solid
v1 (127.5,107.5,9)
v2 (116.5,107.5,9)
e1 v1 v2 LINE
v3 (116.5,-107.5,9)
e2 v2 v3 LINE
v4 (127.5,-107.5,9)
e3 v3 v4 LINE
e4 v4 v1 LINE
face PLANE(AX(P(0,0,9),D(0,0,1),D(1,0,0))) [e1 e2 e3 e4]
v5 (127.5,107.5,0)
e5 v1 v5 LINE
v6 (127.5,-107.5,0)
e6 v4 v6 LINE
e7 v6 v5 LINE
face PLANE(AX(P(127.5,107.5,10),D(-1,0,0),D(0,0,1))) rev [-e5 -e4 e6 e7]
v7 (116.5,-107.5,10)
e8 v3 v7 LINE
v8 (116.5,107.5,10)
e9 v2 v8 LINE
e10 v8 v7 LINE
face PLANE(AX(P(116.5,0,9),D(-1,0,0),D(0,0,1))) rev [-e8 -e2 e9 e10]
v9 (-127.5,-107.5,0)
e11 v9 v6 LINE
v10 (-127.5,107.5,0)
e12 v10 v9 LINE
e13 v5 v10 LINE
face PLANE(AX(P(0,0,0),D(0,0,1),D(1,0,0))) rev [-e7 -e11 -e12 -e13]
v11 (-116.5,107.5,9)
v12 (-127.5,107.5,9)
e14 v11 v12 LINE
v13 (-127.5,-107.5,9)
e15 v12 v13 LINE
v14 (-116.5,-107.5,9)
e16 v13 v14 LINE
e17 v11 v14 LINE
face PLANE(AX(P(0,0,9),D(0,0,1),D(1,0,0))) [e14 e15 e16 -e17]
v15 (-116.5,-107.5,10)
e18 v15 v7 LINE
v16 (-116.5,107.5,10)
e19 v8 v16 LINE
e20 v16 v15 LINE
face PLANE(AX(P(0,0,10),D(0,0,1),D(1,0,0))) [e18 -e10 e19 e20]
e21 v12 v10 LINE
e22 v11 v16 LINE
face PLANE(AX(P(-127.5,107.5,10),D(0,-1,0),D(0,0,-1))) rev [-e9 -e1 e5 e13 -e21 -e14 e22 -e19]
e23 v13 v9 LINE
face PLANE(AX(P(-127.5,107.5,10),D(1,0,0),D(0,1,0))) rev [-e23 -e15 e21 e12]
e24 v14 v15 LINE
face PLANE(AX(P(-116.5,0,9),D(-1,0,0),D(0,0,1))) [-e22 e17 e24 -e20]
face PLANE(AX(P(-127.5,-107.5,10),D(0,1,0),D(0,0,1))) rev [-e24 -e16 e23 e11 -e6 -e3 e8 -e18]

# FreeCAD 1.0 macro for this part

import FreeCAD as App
import Part
import Sketcher

V = App.Vector
Q = App.Units.Quantity

doc = App.newDocument("Part")
params = doc.addObject("Spreadsheet::Sheet", "Params")
for row, (alias, value) in enumerate([
    ("sketch1_width", "255 mm"),
    ("sketch1_height", "215 mm"),
    ("pad1_length", "10 mm"),
    ("sketch2_width", "11 mm"),
    ("sketch2_height", "215 mm"),
    ("pocket1_length", "1 mm"),
], start=1):
    params.set(f"A{row}", alias)
    params.set(f"B{row}", "=" + value)
    params.setAlias(f"B{row}", alias)

body = doc.addObject("PartDesign::Body", "Body")

sketch1 = body.newObject("Sketcher::SketchObject", "Sketch")
sketch1.AttachmentSupport = (doc.getObject("XY_Plane"), [""])
sketch1.MapMode = "FlatFace"
sketch1.addGeometry([
    Part.LineSegment(V(-128, 108, 0), V(-128, -108, 0)),
    Part.LineSegment(V(-128, -108, 0), V(128, -108, 0)),
    Part.LineSegment(V(128, -108, 0), V(128, 108, 0)),
    Part.LineSegment(V(128, 108, 0), V(-128, 108, 0)),
], False)
sketch1.addConstraint([
    Sketcher.Constraint("Coincident", 0, 2, 1, 1),
    Sketcher.Constraint("Coincident", 1, 2, 2, 1),
    Sketcher.Constraint("Coincident", 2, 2, 3, 1),
    Sketcher.Constraint("Coincident", 3, 2, 0, 1),
    Sketcher.Constraint("Vertical", 0),
    Sketcher.Constraint("Horizontal", 1),
    Sketcher.Constraint("Vertical", 2),
    Sketcher.Constraint("Horizontal", 3),
    Sketcher.Constraint("Symmetric", 0, 2, 2, 2, -1, 1),
    Sketcher.Constraint("DistanceX", 1, 1, 1, 2, Q("255 mm")),
    Sketcher.Constraint("DistanceY", 0, 2, 0, 1, Q("215 mm")),
])
sketch1.setExpression("Constraints[9]", "Params.sketch1_width")
sketch1.setExpression("Constraints[10]", "Params.sketch1_height")
pad1 = body.newObject("PartDesign::Pad", "Pad")
pad1.Profile = sketch1
pad1.setExpression("Length", "Params.pad1_length")

sketch2 = body.newObject("Sketcher::SketchObject", "Sketch001")
sketch2.AttachmentSupport = (doc.getObject("XY_Plane"), [""])
sketch2.MapMode = "FlatFace"
sketch2.AttachmentOffset = App.Placement(V(0, 0, 10), App.Rotation())
sketch2.addGeometry([
    Part.LineSegment(V(-128, 108, 0), V(-128, -108, 0)),
    Part.LineSegment(V(-128, -108, 0), V(-116, -108, 0)),
    Part.LineSegment(V(-116, -108, 0), V(-116, 108, 0)),
    Part.LineSegment(V(-116, 108, 0), V(-128, 108, 0)),
    Part.LineSegment(V(116, 108, 0), V(116, -108, 0)),
    Part.LineSegment(V(116, -108, 0), V(128, -108, 0)),
    Part.LineSegment(V(128, -108, 0), V(128, 108, 0)),
    Part.LineSegment(V(128, 108, 0), V(116, 108, 0)),
], False)
sketch2.addConstraint([
    Sketcher.Constraint("Coincident", 0, 2, 1, 1),
    Sketcher.Constraint("Coincident", 1, 2, 2, 1),
    Sketcher.Constraint("Coincident", 2, 2, 3, 1),
    Sketcher.Constraint("Coincident", 3, 2, 0, 1),
    Sketcher.Constraint("Coincident", 4, 2, 5, 1),
    Sketcher.Constraint("Coincident", 5, 2, 6, 1),
    Sketcher.Constraint("Coincident", 6, 2, 7, 1),
    Sketcher.Constraint("Coincident", 7, 2, 4, 1),
    Sketcher.Constraint("Vertical", 0),
    Sketcher.Constraint("Horizontal", 1),
    Sketcher.Constraint("Vertical", 2),
    Sketcher.Constraint("Horizontal", 3),
    Sketcher.Constraint("Vertical", 4),
    Sketcher.Constraint("Horizontal", 5),
    Sketcher.Constraint("Vertical", 6),
    Sketcher.Constraint("Horizontal", 7),
    Sketcher.Constraint("Symmetric", 2, 2, 4, 2, -1, 1),
    Sketcher.Constraint("Symmetric", 0, 2, 6, 2, -1, 1),
    Sketcher.Constraint("Horizontal", 1, 2, 4, 2),
    Sketcher.Constraint("DistanceX", 1, 1, 1, 2, Q("11 mm")),
    Sketcher.Constraint("DistanceY", 0, 2, 0, 1, Q("215 mm")),
    Sketcher.Constraint("DistanceX", 1, 2, 4, 2, Q("233 mm")),
])
sketch2.setExpression("Constraints[19]", "Params.sketch2_width")
sketch2.setExpression("Constraints[20]", "Params.sketch2_height")
pocket1 = body.newObject("PartDesign::Pocket", "Pocket")
pocket1.Profile = sketch2
pocket1.setExpression("Length", "Params.pocket1_length")

doc.recompute()
